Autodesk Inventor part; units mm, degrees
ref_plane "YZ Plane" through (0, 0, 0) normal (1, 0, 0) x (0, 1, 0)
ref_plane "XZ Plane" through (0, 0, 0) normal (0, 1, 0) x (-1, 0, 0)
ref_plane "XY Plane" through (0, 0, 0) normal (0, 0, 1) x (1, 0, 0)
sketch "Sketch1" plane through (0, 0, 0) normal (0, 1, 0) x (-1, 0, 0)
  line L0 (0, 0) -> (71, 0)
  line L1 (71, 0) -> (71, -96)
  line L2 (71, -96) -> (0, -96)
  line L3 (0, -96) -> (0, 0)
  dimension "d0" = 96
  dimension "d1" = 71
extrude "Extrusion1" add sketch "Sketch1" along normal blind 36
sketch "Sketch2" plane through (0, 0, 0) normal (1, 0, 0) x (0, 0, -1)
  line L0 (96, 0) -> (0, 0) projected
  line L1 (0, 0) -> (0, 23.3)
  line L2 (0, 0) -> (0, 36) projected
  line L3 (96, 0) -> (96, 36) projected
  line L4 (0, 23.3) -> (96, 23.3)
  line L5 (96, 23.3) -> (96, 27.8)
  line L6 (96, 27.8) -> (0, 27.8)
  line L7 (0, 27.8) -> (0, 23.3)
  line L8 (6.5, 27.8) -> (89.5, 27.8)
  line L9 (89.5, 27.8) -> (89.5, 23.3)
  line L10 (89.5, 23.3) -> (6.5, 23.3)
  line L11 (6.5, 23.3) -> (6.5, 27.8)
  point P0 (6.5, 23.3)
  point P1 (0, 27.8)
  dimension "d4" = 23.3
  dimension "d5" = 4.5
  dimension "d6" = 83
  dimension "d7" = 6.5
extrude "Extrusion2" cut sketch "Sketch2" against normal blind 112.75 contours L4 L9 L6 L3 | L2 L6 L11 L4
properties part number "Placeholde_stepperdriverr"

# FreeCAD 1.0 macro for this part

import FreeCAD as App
import Part
import Sketcher

V = App.Vector

doc = App.newDocument("Part")
body = doc.addObject("PartDesign::Body", "Body")

# Sketch on XZ plane
sketch1 = body.newObject("Sketcher::SketchObject", "Sketch")
sketch1.AttachmentSupport = (doc.getObject("XZ_Plane"), [""])
sketch1.MapMode = "FlatFace"
sketch1.addGeometry([
    Part.LineSegment(V(-71, 0, 0), V(0, 0, 0)),
    Part.LineSegment(V(0, 0, 0), V(0, -96, 0)),
    Part.LineSegment(V(0, -96, 0), V(-71, -96, 0)),
    Part.LineSegment(V(-71, -96, 0), V(-71, 0, 0)),
], False)
sketch1.addConstraint([
    Sketcher.Constraint("Coincident", 0, 2, 1, 1),
    Sketcher.Constraint("Coincident", 1, 2, 2, 1),
    Sketcher.Constraint("Coincident", 2, 2, 3, 1),
    Sketcher.Constraint("Coincident", 3, 2, 0, 1),
    Sketcher.Constraint("Horizontal", 0),
    Sketcher.Constraint("Vertical", 1),
    Sketcher.Constraint("Horizontal", 2),
    Sketcher.Constraint("Vertical", 3),
    Sketcher.Constraint("Coincident", 0, 2, -1, 1),
    Sketcher.Constraint("DistanceX", 0, 1, 0, 2, 71.0),
    Sketcher.Constraint("DistanceY", 1, 2, 1, 1, 96.0),
])
pad1 = body.newObject("PartDesign::Pad", "Pad")
pad1.Profile = sketch1
pad1.Length = 36
pad1.Reversed = True

# Sketch on YZ plane
sketch2 = body.newObject("Sketcher::SketchObject", "Sketch001")
sketch2.AttachmentSupport = (doc.getObject("YZ_Plane"), [""])
sketch2.MapMode = "FlatFace"
sketch2.addGeometry([
    Part.LineSegment(V(23.3, -89.5, 0), V(23.3, -96, 0)),  # 0
    Part.LineSegment(V(23.3, -96, 0), V(27.8, -96, 0)),  # 1
    Part.LineSegment(V(27.8, -96, 0), V(27.8, -89.5, 0)),  # 2
    Part.LineSegment(V(27.8, -89.5, 0), V(23.3, -89.5, 0)),  # 3
    Part.LineSegment(V(27.8, 0, 0), V(23.3, 0, 0)),  # 4
    Part.LineSegment(V(23.3, 0, 0), V(23.3, -6.5, 0)),  # 5
    Part.LineSegment(V(23.3, -6.5, 0), V(27.8, -6.5, 0)),  # 6
    Part.LineSegment(V(27.8, -6.5, 0), V(27.8, 0, 0)),  # 7
], False)
sketch2.addConstraint([
    Sketcher.Constraint("Coincident", 0, 2, 1, 1),
    Sketcher.Constraint("Coincident", 1, 2, 2, 1),
    Sketcher.Constraint("Coincident", 2, 2, 3, 1),
    Sketcher.Constraint("Coincident", 3, 2, 0, 1),
    Sketcher.Constraint("Coincident", 4, 2, 5, 1),
    Sketcher.Constraint("Coincident", 5, 2, 6, 1),
    Sketcher.Constraint("Coincident", 6, 2, 7, 1),
    Sketcher.Constraint("Coincident", 7, 2, 4, 1),
    Sketcher.Constraint("Vertical", 0),
    Sketcher.Constraint("Horizontal", 1),
    Sketcher.Constraint("Vertical", 2),
    Sketcher.Constraint("Horizontal", 3),
    Sketcher.Constraint("Horizontal", 4),
    Sketcher.Constraint("Vertical", 5),
    Sketcher.Constraint("Horizontal", 6),
    Sketcher.Constraint("Vertical", 7),
    Sketcher.Constraint("PointOnObject", 4, 2, -1),
    Sketcher.Constraint("Vertical", 3, 2, 4, 2),
    Sketcher.Constraint("Vertical", 2, 2, 6, 2),
    Sketcher.Constraint("Equal", 2, 5),
    Sketcher.Constraint("DistanceX", 1, 1, 1, 2, 4.5),
    Sketcher.Constraint("DistanceY", 0, 2, 0, 1, 6.5),
    Sketcher.Constraint("DistanceY", 3, 2, 5, 2, 83.0),
    Sketcher.Constraint("DistanceX", -1, 1, 0, 2, 23.3),
])
pocket1 = body.newObject("PartDesign::Pocket", "Pocket")
pocket1.Profile = sketch2
pocket1.Length = 112.75

doc.recompute()
